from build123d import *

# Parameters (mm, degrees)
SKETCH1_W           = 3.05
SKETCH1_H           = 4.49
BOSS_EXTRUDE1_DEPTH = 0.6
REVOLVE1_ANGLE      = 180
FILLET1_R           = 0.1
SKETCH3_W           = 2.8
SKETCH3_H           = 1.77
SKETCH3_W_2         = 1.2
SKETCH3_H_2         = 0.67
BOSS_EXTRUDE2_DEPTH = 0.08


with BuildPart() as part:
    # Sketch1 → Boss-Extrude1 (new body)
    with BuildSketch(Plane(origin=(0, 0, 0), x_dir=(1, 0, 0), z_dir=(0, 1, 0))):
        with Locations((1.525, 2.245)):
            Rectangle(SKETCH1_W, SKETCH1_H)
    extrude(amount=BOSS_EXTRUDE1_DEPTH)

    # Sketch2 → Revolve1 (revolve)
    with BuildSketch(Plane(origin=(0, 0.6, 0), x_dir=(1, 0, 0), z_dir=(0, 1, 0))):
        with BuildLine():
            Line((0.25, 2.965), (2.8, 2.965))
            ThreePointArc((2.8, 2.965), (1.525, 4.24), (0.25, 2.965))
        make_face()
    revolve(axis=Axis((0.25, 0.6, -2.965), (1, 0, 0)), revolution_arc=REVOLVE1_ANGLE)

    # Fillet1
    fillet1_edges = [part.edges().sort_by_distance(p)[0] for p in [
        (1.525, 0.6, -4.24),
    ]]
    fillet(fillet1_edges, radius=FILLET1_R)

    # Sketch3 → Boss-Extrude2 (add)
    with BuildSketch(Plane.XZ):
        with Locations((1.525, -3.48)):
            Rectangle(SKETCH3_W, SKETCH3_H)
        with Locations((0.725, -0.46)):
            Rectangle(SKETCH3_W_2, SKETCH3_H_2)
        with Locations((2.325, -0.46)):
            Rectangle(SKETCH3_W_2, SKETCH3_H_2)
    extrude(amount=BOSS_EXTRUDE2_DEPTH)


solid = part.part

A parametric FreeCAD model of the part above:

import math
import FreeCAD as App
import Part
import Sketcher

V = App.Vector


def edges_at(feature, points):
    """Names of the edges that pass closest to the given points."""
    edges = feature.Shape.Edges
    near = lambda p: min(range(len(edges)), key=lambda i: edges[i].distToShape(Part.Vertex(*p))[0])
    return sorted({f"Edge{near(p) + 1}" for p in points})


def add_polygon(sketch, points):
    """Adds a closed chain of lines whose ends are joined by coincident constraints."""
    first, n = sketch.GeometryCount, len(points)
    for a, b in zip(points, points[1:] + points[:1]):
        sketch.addGeometry(Part.LineSegment(App.Vector(*a, 0), App.Vector(*b, 0)), False)
    for i in range(n):
        sketch.addConstraint(Sketcher.Constraint("Coincident", first + i, 2, first + (i + 1) % n, 1))

doc = App.newDocument("Part")
body = doc.addObject("PartDesign::Body", "Body")

# Sketch on XZ plane
sketch1 = body.newObject("Sketcher::SketchObject", "Sketch")
sketch1.AttachmentSupport = (doc.getObject("XZ_Plane"), [""])
sketch1.MapMode = "FlatFace"
add_polygon(sketch1, [(0, -4.5), (0, 0), (3, 0), (3, -4.5)])  # lines 0-3
sketch1.addConstraint([
    Sketcher.Constraint("Vertical", 0),
    Sketcher.Constraint("Horizontal", 1),
    Sketcher.Constraint("Vertical", 2),
    Sketcher.Constraint("Horizontal", 3),
    Sketcher.Constraint("Coincident", 0, 2, -1, 1),
    Sketcher.Constraint("DistanceX", 1, 1, 1, 2, 3.05),
    Sketcher.Constraint("DistanceY", 0, 1, 0, 2, 4.49),
])
pad1 = body.newObject("PartDesign::Pad", "Pad")
pad1.Profile = sketch1
pad1.Length = 0.6
pad1.Reversed = True

# Sketch on XZ plane
sketch2 = body.newObject("Sketcher::SketchObject", "Sketch001")
sketch2.AttachmentSupport = (doc.getObject("XZ_Plane"), [""])
sketch2.MapMode = "FlatFace"
sketch2.AttachmentOffset = App.Placement(V(0, 0, -0.6), App.Rotation())
sketch2.addGeometry([
    Part.LineSegment(V(0.2, -3, 0), V(2.8, -3, 0)),
    Part.ArcOfCircle(Part.Circle(V(1.5, -3, 0), V(0, 0, 1), 1.3), math.radians(180), math.radians(360)),
], False)
sketch2.addGeometry(Part.LineSegment(V(0.2, -3, 0), V(2.8, -3, 0)), True)  # axis
sketch2.addConstraint([
    Sketcher.Constraint("Coincident", 0, 1, 1, 1),
    Sketcher.Constraint("Coincident", 1, 2, 0, 2),
    Sketcher.Constraint("Horizontal", 0),
    Sketcher.Constraint("Horizontal", 2),
    Sketcher.Constraint("Coincident", 2, 1, 0, 1),
    Sketcher.Constraint("Horizontal", 1, 3, 0, 1),
    Sketcher.Constraint("Equal", 0, 2),
    Sketcher.Constraint("Radius", 1, 1.275),
    Sketcher.Constraint("DistanceX", -1, 1, 1, 2, 2.8),
    Sketcher.Constraint("DistanceY", 1, 3, -1, 1, 2.965),
])
revolution = body.newObject("PartDesign::Revolution", "Revolution")
revolution.Profile = sketch2
revolution.ReferenceAxis = (sketch2, ["Axis0"])
revolution.Angle = 180
doc.recompute()

fillet = body.newObject("PartDesign::Fillet", "Fillet")
fillet.Base = (revolution, edges_at(revolution, [(1.525, 0.6, -4.24)]))
fillet.Radius = 0.1

# Sketch on XZ plane
sketch3 = body.newObject("Sketcher::SketchObject", "Sketch002")
sketch3.AttachmentSupport = (doc.getObject("XZ_Plane"), [""])
sketch3.MapMode = "FlatFace"
add_polygon(sketch3, [(0.1, -2.6), (0.1, -4.4), (2.9, -4.4), (2.9, -2.6)])  # lines 0-3
add_polygon(sketch3, [(0.1, -0.1), (0.1, -0.8), (1.3, -0.8), (1.3, -0.1)])  # lines 4-7
add_polygon(sketch3, [(1.7, -0.1), (1.7, -0.8), (2.9, -0.8), (2.9, -0.1)])  # lines 8-11
sketch3.addConstraint([
    Sketcher.Constraint("Vertical", 0),
    Sketcher.Constraint("Horizontal", 1),
    Sketcher.Constraint("Vertical", 2),
    Sketcher.Constraint("Horizontal", 3),
    Sketcher.Constraint("Vertical", 4),
    Sketcher.Constraint("Horizontal", 5),
    Sketcher.Constraint("Vertical", 6),
    Sketcher.Constraint("Horizontal", 7),
    Sketcher.Constraint("Vertical", 8),
    Sketcher.Constraint("Horizontal", 9),
    Sketcher.Constraint("Vertical", 10),
    Sketcher.Constraint("Horizontal", 11),
    Sketcher.Constraint("Horizontal", 5, 2, 8, 2),
    Sketcher.Constraint("Horizontal", 7, 2, 10, 2),
    Sketcher.Constraint("Vertical", 3, 2, 4, 2),
    Sketcher.Constraint("Vertical", 2, 2, 9, 2),
    Sketcher.Constraint("Equal", 7, 9),
    Sketcher.Constraint("DistanceX", 1, 1, 1, 2, 2.8),
    Sketcher.Constraint("DistanceX", 5, 1, 5, 2, 1.2),
    Sketcher.Constraint("DistanceY", 0, 2, 0, 1, 1.77),
    Sketcher.Constraint("DistanceY", 4, 2, 4, 1, 0.67),
    Sketcher.Constraint("DistanceY", 3, 2, 4, 2, 1.8),
    Sketcher.Constraint("DistanceX", -1, 1, 0, 2, 0.125),
    Sketcher.Constraint("DistanceY", 0, 2, -1, 1, 4.365),
])
pad2 = body.newObject("PartDesign::Pad", "Pad001")
pad2.Profile = sketch3
pad2.Length = 0.08

doc.recompute()
